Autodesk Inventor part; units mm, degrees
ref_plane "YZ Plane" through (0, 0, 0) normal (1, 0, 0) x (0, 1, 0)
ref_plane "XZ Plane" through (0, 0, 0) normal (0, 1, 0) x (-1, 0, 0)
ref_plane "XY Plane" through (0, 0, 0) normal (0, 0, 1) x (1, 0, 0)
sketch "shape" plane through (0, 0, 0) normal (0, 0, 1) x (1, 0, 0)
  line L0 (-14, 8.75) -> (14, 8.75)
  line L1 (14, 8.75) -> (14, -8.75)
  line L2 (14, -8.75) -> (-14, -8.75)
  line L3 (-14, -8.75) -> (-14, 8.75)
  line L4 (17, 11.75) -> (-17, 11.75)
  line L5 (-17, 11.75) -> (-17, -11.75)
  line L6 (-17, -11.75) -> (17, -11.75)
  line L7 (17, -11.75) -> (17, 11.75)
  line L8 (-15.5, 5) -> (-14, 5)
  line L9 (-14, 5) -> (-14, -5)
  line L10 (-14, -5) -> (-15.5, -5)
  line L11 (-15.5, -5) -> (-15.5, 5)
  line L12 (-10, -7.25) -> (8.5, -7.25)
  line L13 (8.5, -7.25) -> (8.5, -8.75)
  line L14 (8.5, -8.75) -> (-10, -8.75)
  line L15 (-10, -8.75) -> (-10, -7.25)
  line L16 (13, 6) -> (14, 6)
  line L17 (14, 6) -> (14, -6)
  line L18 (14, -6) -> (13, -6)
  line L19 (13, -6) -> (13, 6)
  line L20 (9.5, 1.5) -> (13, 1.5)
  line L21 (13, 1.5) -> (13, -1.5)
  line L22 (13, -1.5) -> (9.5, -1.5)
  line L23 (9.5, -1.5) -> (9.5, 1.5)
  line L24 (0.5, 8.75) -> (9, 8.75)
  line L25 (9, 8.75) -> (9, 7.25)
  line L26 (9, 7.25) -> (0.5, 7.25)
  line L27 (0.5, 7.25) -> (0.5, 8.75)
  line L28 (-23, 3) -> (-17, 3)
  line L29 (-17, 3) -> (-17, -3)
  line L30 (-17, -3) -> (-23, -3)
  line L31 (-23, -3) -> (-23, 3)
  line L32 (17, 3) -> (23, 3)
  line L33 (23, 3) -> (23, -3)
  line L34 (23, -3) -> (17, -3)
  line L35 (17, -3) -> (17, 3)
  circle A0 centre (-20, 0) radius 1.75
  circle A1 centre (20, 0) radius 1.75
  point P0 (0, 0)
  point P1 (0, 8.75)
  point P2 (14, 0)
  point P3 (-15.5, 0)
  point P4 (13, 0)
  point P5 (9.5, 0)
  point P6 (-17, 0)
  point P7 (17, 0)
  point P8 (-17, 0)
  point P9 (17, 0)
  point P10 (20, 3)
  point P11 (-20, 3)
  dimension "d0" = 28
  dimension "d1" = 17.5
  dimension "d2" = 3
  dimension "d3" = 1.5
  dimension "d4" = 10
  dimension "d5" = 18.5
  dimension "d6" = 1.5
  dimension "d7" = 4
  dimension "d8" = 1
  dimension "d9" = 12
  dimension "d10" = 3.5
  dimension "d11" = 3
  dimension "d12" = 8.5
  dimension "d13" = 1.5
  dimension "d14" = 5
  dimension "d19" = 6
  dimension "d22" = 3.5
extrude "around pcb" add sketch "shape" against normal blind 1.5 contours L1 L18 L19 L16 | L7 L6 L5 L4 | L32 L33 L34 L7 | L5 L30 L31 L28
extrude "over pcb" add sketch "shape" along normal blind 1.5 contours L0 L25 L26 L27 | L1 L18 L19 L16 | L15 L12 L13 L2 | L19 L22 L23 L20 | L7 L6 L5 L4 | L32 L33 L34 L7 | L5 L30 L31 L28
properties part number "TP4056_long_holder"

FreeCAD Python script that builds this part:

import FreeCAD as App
import Part
import Sketcher

V = App.Vector

doc = App.newDocument("Part")
params = doc.addObject("Spreadsheet::Sheet", "Params")
for row, (alias, value) in enumerate([
    ("sketch1_diameter", "3.5 mm"),
    ("sketch1_width", "6 mm"),
    ("sketch1_width2", "1 mm"),
    ("sketch1_width3", "28 mm"),
    ("sketch1_height", "10 mm"),
    ("pad1_length", "1.5 mm"),
    ("sketch2_diameter", "3.5 mm"),
    ("sketch2_width", "6 mm"),
    ("sketch2_width2", "5 mm"),
    ("sketch2_width3", "1 mm"),
    ("sketch2_width4", "4 mm"),
    ("pad2_length", "1.5 mm"),
], start=1):
    params.set(f"A{row}", alias)
    params.set(f"B{row}", "=" + value)
    params.setAlias(f"B{row}", alias)

body = doc.addObject("PartDesign::Body", "Body")

sketch1 = body.newObject("Sketcher::SketchObject", "Sketch")
sketch1.AttachmentSupport = (doc.getObject("XY_Plane"), [""])
sketch1.MapMode = "FlatFace"
sketch1.addGeometry([
    Part.LineSegment(V(17, 3, 0), V(17, 11.8, 0)),
    Part.LineSegment(V(17, 11.8, 0), V(-17, 11.8, 0)),
    Part.LineSegment(V(-17, 11.8, 0), V(-17, 3, 0)),
    Part.LineSegment(V(-17, 3, 0), V(-23, 3, 0)),
    Part.LineSegment(V(-23, 3, 0), V(-23, -3, 0)),
    Part.LineSegment(V(-23, -3, 0), V(-17, -3, 0)),
    Part.LineSegment(V(-17, -3, 0), V(-17, -11.8, 0)),
    Part.LineSegment(V(-17, -11.8, 0), V(17, -11.8, 0)),
    Part.LineSegment(V(17, -11.8, 0), V(17, -3, 0)),
    Part.LineSegment(V(17, -3, 0), V(23, -3, 0)),
    Part.LineSegment(V(23, -3, 0), V(23, 3, 0)),
    Part.LineSegment(V(23, 3, 0), V(17, 3, 0)),
    Part.LineSegment(V(13, -6, 0), V(14, -6, 0)),
    Part.LineSegment(V(14, -6, 0), V(14, -8.8, 0)),
    Part.LineSegment(V(14, -8.8, 0), V(-14, -8.8, 0)),
    Part.LineSegment(V(-14, -8.8, 0), V(-14, -5, 0)),
    Part.LineSegment(V(-14, -5, 0), V(-15.5, -5, 0)),
    Part.LineSegment(V(-15.5, -5, 0), V(-15.5, 5, 0)),
    Part.LineSegment(V(-15.5, 5, 0), V(-14, 5, 0)),
    Part.LineSegment(V(-14, 5, 0), V(-14, 8.8, 0)),
    Part.LineSegment(V(-14, 8.8, 0), V(14, 8.8, 0)),
    Part.LineSegment(V(14, 8.8, 0), V(14, 6, 0)),
    Part.LineSegment(V(14, 6, 0), V(13, 6, 0)),
    Part.LineSegment(V(13, 6, 0), V(13, -6, 0)),
    Part.Circle(V(20, 0, 0), V(0, 0, 1), 1.8),
    Part.Circle(V(-20, 0, 0), V(0, 0, 1), 1.8),
], False)
sketch1.addConstraint([
    Sketcher.Constraint("Coincident", 0, 2, 1, 1),
    Sketcher.Constraint("Coincident", 1, 2, 2, 1),
    Sketcher.Constraint("Coincident", 2, 2, 3, 1),
    Sketcher.Constraint("Coincident", 3, 2, 4, 1),
    Sketcher.Constraint("Coincident", 4, 2, 5, 1),
    Sketcher.Constraint("Coincident", 5, 2, 6, 1),
    Sketcher.Constraint("Coincident", 6, 2, 7, 1),
    Sketcher.Constraint("Coincident", 7, 2, 8, 1),
    Sketcher.Constraint("Coincident", 8, 2, 9, 1),
    Sketcher.Constraint("Coincident", 9, 2, 10, 1),
    Sketcher.Constraint("Coincident", 10, 2, 11, 1),
    Sketcher.Constraint("Coincident", 11, 2, 0, 1),
    Sketcher.Constraint("Coincident", 12, 2, 13, 1),
    Sketcher.Constraint("Coincident", 13, 2, 14, 1),
    Sketcher.Constraint("Coincident", 14, 2, 15, 1),
    Sketcher.Constraint("Coincident", 15, 2, 16, 1),
    Sketcher.Constraint("Coincident", 16, 2, 17, 1),
    Sketcher.Constraint("Coincident", 17, 2, 18, 1),
    Sketcher.Constraint("Coincident", 18, 2, 19, 1),
    Sketcher.Constraint("Coincident", 19, 2, 20, 1),
    Sketcher.Constraint("Coincident", 20, 2, 21, 1),
    Sketcher.Constraint("Coincident", 21, 2, 22, 1),
    Sketcher.Constraint("Coincident", 22, 2, 23, 1),
    Sketcher.Constraint("Coincident", 23, 2, 12, 1),
    Sketcher.Constraint("Vertical", 0),
    Sketcher.Constraint("Horizontal", 1),
    Sketcher.Constraint("Vertical", 2),
    Sketcher.Constraint("Horizontal", 3),
    Sketcher.Constraint("Vertical", 4),
    Sketcher.Constraint("Horizontal", 5),
    Sketcher.Constraint("Vertical", 6),
    Sketcher.Constraint("Horizontal", 7),
    Sketcher.Constraint("Vertical", 8),
    Sketcher.Constraint("Horizontal", 9),
    Sketcher.Constraint("Vertical", 10),
    Sketcher.Constraint("Horizontal", 11),
    Sketcher.Constraint("Horizontal", 12),
    Sketcher.Constraint("Vertical", 13),
    Sketcher.Constraint("Horizontal", 14),
    Sketcher.Constraint("Vertical", 15),
    Sketcher.Constraint("Horizontal", 16),
    Sketcher.Constraint("Vertical", 17),
    Sketcher.Constraint("Horizontal", 18),
    Sketcher.Constraint("Vertical", 19),
    Sketcher.Constraint("Horizontal", 20),
    Sketcher.Constraint("Vertical", 21),
    Sketcher.Constraint("Horizontal", 22),
    Sketcher.Constraint("Vertical", 23),
    Sketcher.Constraint("Equal", 24, 25),
    Sketcher.Constraint("Symmetric", 24, 3, 25, 3, -1, 1),
    Sketcher.Constraint("Symmetric", 0, 2, 6, 2, -1, 1),
    Sketcher.Constraint("Symmetric", 2, 2, 8, 2, -1, 1),
    Sketcher.Constraint("Symmetric", 4, 2, 10, 2, -1, 1),
    Sketcher.Constraint("Symmetric", 13, 2, 19, 2, -1, 1),
    Sketcher.Constraint("Symmetric", 5, 2, 8, 2, -2),
    Sketcher.Constraint("Symmetric", 15, 2, 18, 2, -1),
    Sketcher.Constraint("Symmetric", 12, 2, 21, 2, -1),
    Sketcher.Constraint("PointOnObject", 24, 3, -1),
    Sketcher.Constraint("Equal", 11, 4),
    Sketcher.Constraint("Diameter", 24, 3.5),
    Sketcher.Constraint("DistanceX", 3, 2, 3, 1, 6.0),
    Sketcher.Constraint("DistanceX", 12, 1, 12, 2, 1.0),
    Sketcher.Constraint("DistanceX", 14, 2, 14, 1, 28.0),
    Sketcher.Constraint("DistanceY", 17, 1, 17, 2, 10.0),
    Sketcher.Constraint("DistanceY", 23, 2, 23, 1, 12.0),
    Sketcher.Constraint("DistanceX", 16, 2, 16, 1, 1.5),
    Sketcher.Constraint("DistanceX", 0, 2, 24, 3, 3.0),
    Sketcher.Constraint("DistanceX", 12, 2, 8, 2, 3.0),
    Sketcher.Constraint("DistanceY", 7, 2, 13, 2, 3.0),
    Sketcher.Constraint("DistanceY", 0, 1, 0, 2, 8.75),
])
sketch1.setExpression("Constraints[59]", "Params.sketch1_diameter")
sketch1.setExpression("Constraints[60]", "Params.sketch1_width")
sketch1.setExpression("Constraints[61]", "Params.sketch1_width2")
sketch1.setExpression("Constraints[62]", "Params.sketch1_width3")
sketch1.setExpression("Constraints[63]", "Params.sketch1_height")
pad1 = body.newObject("PartDesign::Pad", "Pad")
pad1.Profile = sketch1
pad1.setExpression("Length", "Params.pad1_length")
pad1.Reversed = True

sketch2 = body.newObject("Sketcher::SketchObject", "Sketch001")
sketch2.AttachmentSupport = (doc.getObject("XY_Plane"), [""])
sketch2.MapMode = "FlatFace"
sketch2.addGeometry([
    Part.LineSegment(V(17, 3, 0), V(17, 11.8, 0)),
    Part.LineSegment(V(17, 11.8, 0), V(-17, 11.8, 0)),
    Part.LineSegment(V(-17, 11.8, 0), V(-17, 3, 0)),
    Part.LineSegment(V(-17, 3, 0), V(-23, 3, 0)),
    Part.LineSegment(V(-23, 3, 0), V(-23, -3, 0)),
    Part.LineSegment(V(-23, -3, 0), V(-17, -3, 0)),
    Part.LineSegment(V(-17, -3, 0), V(-17, -11.8, 0)),
    Part.LineSegment(V(-17, -11.8, 0), V(17, -11.8, 0)),
    Part.LineSegment(V(17, -11.8, 0), V(17, -3, 0)),
    Part.LineSegment(V(17, -3, 0), V(23, -3, 0)),
    Part.LineSegment(V(23, -3, 0), V(23, 3, 0)),
    Part.LineSegment(V(23, 3, 0), V(17, 3, 0)),
    Part.LineSegment(V(9, 7.2, 0), V(9, 8.8, 0)),
    Part.LineSegment(V(9, 8.8, 0), V(14, 8.8, 0)),
    Part.LineSegment(V(14, 8.8, 0), V(14, 6, 0)),
    Part.LineSegment(V(14, 6, 0), V(13, 6, 0)),
    Part.LineSegment(V(13, 6, 0), V(13, 1.5, 0)),
    Part.LineSegment(V(13, 1.5, 0), V(9.5, 1.5, 0)),
    Part.LineSegment(V(9.5, 1.5, 0), V(9.5, -1.5, 0)),
    Part.LineSegment(V(9.5, -1.5, 0), V(13, -1.5, 0)),
    Part.LineSegment(V(13, -1.5, 0), V(13, -6, 0)),
    Part.LineSegment(V(13, -6, 0), V(14, -6, 0)),
    Part.LineSegment(V(14, -6, 0), V(14, -8.8, 0)),
    Part.LineSegment(V(14, -8.8, 0), V(8.5, -8.8, 0)),
    Part.LineSegment(V(8.5, -8.8, 0), V(8.5, -7.2, 0)),
    Part.LineSegment(V(8.5, -7.2, 0), V(-10, -7.2, 0)),
    Part.LineSegment(V(-10, -7.2, 0), V(-10, -8.8, 0)),
    Part.LineSegment(V(-10, -8.8, 0), V(-14, -8.8, 0)),
    Part.LineSegment(V(-14, -8.8, 0), V(-14, -5, 0)),
    Part.LineSegment(V(-14, -5, 0), V(-15.5, -5, 0)),
    Part.LineSegment(V(-15.5, -5, 0), V(-15.5, 5, 0)),
    Part.LineSegment(V(-15.5, 5, 0), V(-14, 5, 0)),
    Part.LineSegment(V(-14, 5, 0), V(-14, 8.8, 0)),
    Part.LineSegment(V(-14, 8.8, 0), V(0.5, 8.8, 0)),
    Part.LineSegment(V(0.5, 8.8, 0), V(0.5, 7.2, 0)),
    Part.LineSegment(V(0.5, 7.2, 0), V(9, 7.2, 0)),
    Part.Circle(V(20, 0, 0), V(0, 0, 1), 1.8),
    Part.Circle(V(-20, 0, 0), V(0, 0, 1), 1.8),
], False)
sketch2.addConstraint([
    Sketcher.Constraint("Coincident", 0, 2, 1, 1),
    Sketcher.Constraint("Coincident", 1, 2, 2, 1),
    Sketcher.Constraint("Coincident", 2, 2, 3, 1),
    Sketcher.Constraint("Coincident", 3, 2, 4, 1),
    Sketcher.Constraint("Coincident", 4, 2, 5, 1),
    Sketcher.Constraint("Coincident", 5, 2, 6, 1),
    Sketcher.Constraint("Coincident", 6, 2, 7, 1),
    Sketcher.Constraint("Coincident", 7, 2, 8, 1),
    Sketcher.Constraint("Coincident", 8, 2, 9, 1),
    Sketcher.Constraint("Coincident", 9, 2, 10, 1),
    Sketcher.Constraint("Coincident", 10, 2, 11, 1),
    Sketcher.Constraint("Coincident", 11, 2, 0, 1),
    Sketcher.Constraint("Coincident", 12, 2, 13, 1),
    Sketcher.Constraint("Coincident", 13, 2, 14, 1),
    Sketcher.Constraint("Coincident", 14, 2, 15, 1),
    Sketcher.Constraint("Coincident", 15, 2, 16, 1),
    Sketcher.Constraint("Coincident", 16, 2, 17, 1),
    Sketcher.Constraint("Coincident", 17, 2, 18, 1),
    Sketcher.Constraint("Coincident", 18, 2, 19, 1),
    Sketcher.Constraint("Coincident", 19, 2, 20, 1),
    Sketcher.Constraint("Coincident", 20, 2, 21, 1),
    Sketcher.Constraint("Coincident", 21, 2, 22, 1),
    Sketcher.Constraint("Coincident", 22, 2, 23, 1),
    Sketcher.Constraint("Coincident", 23, 2, 24, 1),
    Sketcher.Constraint("Coincident", 24, 2, 25, 1),
    Sketcher.Constraint("Coincident", 25, 2, 26, 1),
    Sketcher.Constraint("Coincident", 26, 2, 27, 1),
    Sketcher.Constraint("Coincident", 27, 2, 28, 1),
    Sketcher.Constraint("Coincident", 28, 2, 29, 1),
    Sketcher.Constraint("Coincident", 29, 2, 30, 1),
    Sketcher.Constraint("Coincident", 30, 2, 31, 1),
    Sketcher.Constraint("Coincident", 31, 2, 32, 1),
    Sketcher.Constraint("Coincident", 32, 2, 33, 1),
    Sketcher.Constraint("Coincident", 33, 2, 34, 1),
    Sketcher.Constraint("Coincident", 34, 2, 35, 1),
    Sketcher.Constraint("Coincident", 35, 2, 12, 1),
    Sketcher.Constraint("Vertical", 0),
    Sketcher.Constraint("Horizontal", 1),
    Sketcher.Constraint("Vertical", 2),
    Sketcher.Constraint("Horizontal", 3),
    Sketcher.Constraint("Vertical", 4),
    Sketcher.Constraint("Horizontal", 5),
    Sketcher.Constraint("Vertical", 6),
    Sketcher.Constraint("Horizontal", 7),
    Sketcher.Constraint("Vertical", 8),
    Sketcher.Constraint("Horizontal", 9),
    Sketcher.Constraint("Vertical", 10),
    Sketcher.Constraint("Horizontal", 11),
    Sketcher.Constraint("Vertical", 12),
    Sketcher.Constraint("Horizontal", 13),
    Sketcher.Constraint("Vertical", 14),
    Sketcher.Constraint("Horizontal", 15),
    Sketcher.Constraint("Vertical", 16),
    Sketcher.Constraint("Horizontal", 17),
    Sketcher.Constraint("Vertical", 18),
    Sketcher.Constraint("Horizontal", 19),
    Sketcher.Constraint("Vertical", 20),
    Sketcher.Constraint("Horizontal", 21),
    Sketcher.Constraint("Vertical", 22),
    Sketcher.Constraint("Horizontal", 23),
    Sketcher.Constraint("Vertical", 24),
    Sketcher.Constraint("Horizontal", 25),
    Sketcher.Constraint("Vertical", 26),
    Sketcher.Constraint("Horizontal", 27),
    Sketcher.Constraint("Vertical", 28),
    Sketcher.Constraint("Horizontal", 29),
    Sketcher.Constraint("Vertical", 30),
    Sketcher.Constraint("Horizontal", 31),
    Sketcher.Constraint("Vertical", 32),
    Sketcher.Constraint("Horizontal", 33),
    Sketcher.Constraint("Vertical", 34),
    Sketcher.Constraint("Horizontal", 35),
    Sketcher.Constraint("Equal", 36, 37),
    Sketcher.Constraint("Symmetric", 36, 3, 37, 3, -1, 1),
    Sketcher.Constraint("Symmetric", 0, 2, 6, 2, -1, 1),
    Sketcher.Constraint("Symmetric", 2, 2, 8, 2, -1, 1),
    Sketcher.Constraint("Symmetric", 4, 2, 10, 2, -1, 1),
    Sketcher.Constraint("Symmetric", 13, 2, 27, 2, -1, 1),
    Sketcher.Constraint("Symmetric", 22, 2, 32, 2, -1, 1),
    Sketcher.Constraint("Symmetric", 5, 2, 8, 2, -2),
    Sketcher.Constraint("Symmetric", 22, 2, 27, 2, -2),
    Sketcher.Constraint("Symmetric", 16, 2, 19, 2, -1),
    Sketcher.Constraint("PointOnObject", 36, 3, -1),
    Sketcher.Constraint("Equal", 11, 4),
    Sketcher.Constraint("Equal", 31, 12),
    Sketcher.Constraint("Equal", 16, 20),
    Sketcher.Constraint("Equal", 12, 24),
    Sketcher.Constraint("Equal", 28, 32),
    Sketcher.Constraint("Diameter", 36, 3.5),
    Sketcher.Constraint("DistanceX", 3, 2, 3, 1, 6.0),
    Sketcher.Constraint("DistanceX", 13, 1, 13, 2, 5.0),
    Sketcher.Constraint("DistanceX", 15, 2, 15, 1, 1.0),
    Sketcher.Constraint("DistanceX", 27, 2, 27, 1, 4.0),
    Sketcher.Constraint("DistanceY", 18, 2, 18, 1, 3.0),
    Sketcher.Constraint("DistanceY", 30, 1, 30, 2, 10.0),
    Sketcher.Constraint("DistanceX", 17, 2, 17, 1, 3.5),
    Sketcher.Constraint("DistanceX", 25, 2, 25, 1, 18.5),
    Sketcher.Constraint("DistanceX", 29, 2, 29, 1, 1.5),
    Sketcher.Constraint("DistanceX", 35, 1, 35, 2, 8.5),
    Sketcher.Constraint("DistanceY", -1, 1, 14, 2, 6.0),
    Sketcher.Constraint("DistanceX", 25, 2, -1, 1, 10.0),
    Sketcher.Constraint("DistanceX", 0, 2, 36, 3, 3.0),
    Sketcher.Constraint("DistanceY", 12, 2, 0, 2, 3.0),
    Sketcher.Constraint("DistanceX", 13, 2, 0, 2, 3.0),
    Sketcher.Constraint("DistanceY", 0, 1, 0, 2, 8.75),
])
sketch2.setExpression("Constraints[88]", "Params.sketch2_diameter")
sketch2.setExpression("Constraints[89]", "Params.sketch2_width")
sketch2.setExpression("Constraints[90]", "Params.sketch2_width2")
sketch2.setExpression("Constraints[91]", "Params.sketch2_width3")
sketch2.setExpression("Constraints[92]", "Params.sketch2_width4")
pad2 = body.newObject("PartDesign::Pad", "Pad001")
pad2.Profile = sketch2
pad2.setExpression("Length", "Params.pad2_length")

doc.recompute()
